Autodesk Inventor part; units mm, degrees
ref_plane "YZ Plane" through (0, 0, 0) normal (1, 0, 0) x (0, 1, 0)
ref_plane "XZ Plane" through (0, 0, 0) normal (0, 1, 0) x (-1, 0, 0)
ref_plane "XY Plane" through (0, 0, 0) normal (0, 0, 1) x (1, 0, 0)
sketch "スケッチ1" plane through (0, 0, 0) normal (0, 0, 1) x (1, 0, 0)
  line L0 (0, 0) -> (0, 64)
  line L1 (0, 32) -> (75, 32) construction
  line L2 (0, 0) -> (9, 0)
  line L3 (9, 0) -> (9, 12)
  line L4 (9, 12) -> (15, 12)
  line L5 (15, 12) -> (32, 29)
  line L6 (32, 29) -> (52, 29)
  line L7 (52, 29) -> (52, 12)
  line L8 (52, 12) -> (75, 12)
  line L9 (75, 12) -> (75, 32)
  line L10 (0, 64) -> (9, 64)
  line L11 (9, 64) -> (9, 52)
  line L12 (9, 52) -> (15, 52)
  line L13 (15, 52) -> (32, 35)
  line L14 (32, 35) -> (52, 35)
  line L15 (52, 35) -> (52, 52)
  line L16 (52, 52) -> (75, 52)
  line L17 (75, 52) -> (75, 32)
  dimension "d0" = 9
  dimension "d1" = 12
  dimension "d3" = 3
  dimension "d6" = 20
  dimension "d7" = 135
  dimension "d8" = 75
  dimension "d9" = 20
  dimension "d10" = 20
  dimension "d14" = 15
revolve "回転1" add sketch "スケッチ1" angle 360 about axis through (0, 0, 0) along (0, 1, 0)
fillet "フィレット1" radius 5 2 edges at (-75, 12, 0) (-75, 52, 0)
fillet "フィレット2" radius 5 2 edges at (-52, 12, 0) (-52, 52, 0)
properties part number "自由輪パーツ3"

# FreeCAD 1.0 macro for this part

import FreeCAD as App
import Part
import Sketcher
Q = App.Units.Quantity


def edges_at(feature, points):
    """Names of the edges that pass closest to the given points."""
    edges = feature.Shape.Edges
    near = lambda p: min(range(len(edges)), key=lambda i: edges[i].distToShape(Part.Vertex(*p))[0])
    return sorted({f"Edge{near(p) + 1}" for p in points})

doc = App.newDocument("Part")
body = doc.addObject("PartDesign::Body", "Body")

# Sketch on XY plane
sketch1 = body.newObject("Sketcher::SketchObject", "Sketch")
sketch1.AttachmentSupport = (doc.getObject("XY_Plane"), [""])
sketch1.MapMode = "FlatFace"
sketch1.addGeometry([
    Part.LineSegment(App.Vector(0, 64, 0), App.Vector(0, 0, 0)),  # 0
    Part.LineSegment(App.Vector(0, 0, 0), App.Vector(9, 0, 0)),  # 1
    Part.LineSegment(App.Vector(9, 0, 0), App.Vector(9, 12, 0)),  # 2
    Part.LineSegment(App.Vector(9, 12, 0), App.Vector(15, 12, 0)),  # 3
    Part.LineSegment(App.Vector(15, 12, 0), App.Vector(32, 29, 0)),  # 4
    Part.LineSegment(App.Vector(32, 29, 0), App.Vector(52, 29, 0)),  # 5
    Part.LineSegment(App.Vector(52, 29, 0), App.Vector(52, 12, 0)),  # 6
    Part.LineSegment(App.Vector(52, 12, 0), App.Vector(75, 12, 0)),  # 7
    Part.LineSegment(App.Vector(75, 12, 0), App.Vector(75, 52, 0)),  # 8
    Part.LineSegment(App.Vector(75, 52, 0), App.Vector(52, 52, 0)),  # 9
    Part.LineSegment(App.Vector(52, 52, 0), App.Vector(52, 35, 0)),  # 10
    Part.LineSegment(App.Vector(52, 35, 0), App.Vector(32, 35, 0)),  # 11
    Part.LineSegment(App.Vector(32, 35, 0), App.Vector(15, 52, 0)),  # 12
    Part.LineSegment(App.Vector(15, 52, 0), App.Vector(9, 52, 0)),  # 13
    Part.LineSegment(App.Vector(9, 52, 0), App.Vector(9, 64, 0)),  # 14
    Part.LineSegment(App.Vector(9, 64, 0), App.Vector(0, 64, 0)),  # 15
], False)
sketch1.addConstraint([
    Sketcher.Constraint("Coincident", 0, 2, 1, 1),
    Sketcher.Constraint("Coincident", 1, 2, 2, 1),
    Sketcher.Constraint("Coincident", 2, 2, 3, 1),
    Sketcher.Constraint("Coincident", 3, 2, 4, 1),
    Sketcher.Constraint("Coincident", 4, 2, 5, 1),
    Sketcher.Constraint("Coincident", 5, 2, 6, 1),
    Sketcher.Constraint("Coincident", 6, 2, 7, 1),
    Sketcher.Constraint("Coincident", 7, 2, 8, 1),
    Sketcher.Constraint("Coincident", 8, 2, 9, 1),
    Sketcher.Constraint("Coincident", 9, 2, 10, 1),
    Sketcher.Constraint("Coincident", 10, 2, 11, 1),
    Sketcher.Constraint("Coincident", 11, 2, 12, 1),
    Sketcher.Constraint("Coincident", 12, 2, 13, 1),
    Sketcher.Constraint("Coincident", 13, 2, 14, 1),
    Sketcher.Constraint("Coincident", 14, 2, 15, 1),
    Sketcher.Constraint("Coincident", 15, 2, 0, 1),
    Sketcher.Constraint("Vertical", 0),
    Sketcher.Constraint("Horizontal", 1),
    Sketcher.Constraint("Vertical", 2),
    Sketcher.Constraint("Horizontal", 3),
    Sketcher.Constraint("Horizontal", 5),
    Sketcher.Constraint("Vertical", 6),
    Sketcher.Constraint("Horizontal", 7),
    Sketcher.Constraint("Vertical", 8),
    Sketcher.Constraint("Horizontal", 9),
    Sketcher.Constraint("Vertical", 10),
    Sketcher.Constraint("Horizontal", 11),
    Sketcher.Constraint("Horizontal", 13),
    Sketcher.Constraint("Vertical", 14),
    Sketcher.Constraint("Horizontal", 15),
    Sketcher.Constraint("Coincident", 0, 2, -1, 1),
    Sketcher.Constraint("Perpendicular", 4, 12),
    Sketcher.Constraint("Horizontal", 3, 2, 6, 2),
    Sketcher.Constraint("Horizontal", 9, 2, 12, 2),
    Sketcher.Constraint("Vertical", 6, 2, 9, 2),
    Sketcher.Constraint("Vertical", 4, 2, 11, 2),
    Sketcher.Constraint("Vertical", 3, 2, 12, 2),
    Sketcher.Constraint("Vertical", 2, 2, 13, 2),
    Sketcher.Constraint("Equal", 6, 10),
    Sketcher.Constraint("Equal", 2, 14),
    Sketcher.Constraint("DistanceX", 1, 1, 1, 2, Q("9 mm")),
    Sketcher.Constraint("DistanceX", 5, 1, 5, 2, Q("20 mm")),
    Sketcher.Constraint("DistanceY", 2, 1, 2, 2, Q("12 mm")),
    Sketcher.Constraint("DistanceX", -1, 1, 3, 2, Q("15 mm")),
    Sketcher.Constraint("DistanceX", -1, 1, 7, 2, Q("75 mm")),
    Sketcher.Constraint("DistanceX", 7, 1, 7, 2, Q("23 mm")),
    Sketcher.Constraint("DistanceY", 0, 2, 0, 1, Q("64 mm")),
])
revolution = body.newObject("PartDesign::Revolution", "Revolution")
revolution.Profile = sketch1
revolution.ReferenceAxis = (sketch1, ["V_Axis"])
revolution.Angle = 360
doc.recompute()

fillet = body.newObject("PartDesign::Fillet", "Fillet")
fillet.Base = (revolution, edges_at(revolution, [(-75, 12, 0), (-75, 52, 0)]))
fillet.Radius = 5
doc.recompute()

fillet2 = body.newObject("PartDesign::Fillet", "Fillet001")
fillet2.Base = (fillet, edges_at(fillet, [(-52, 12, 0), (-52, 52, 0)]))
fillet2.Radius = 5

doc.recompute()
